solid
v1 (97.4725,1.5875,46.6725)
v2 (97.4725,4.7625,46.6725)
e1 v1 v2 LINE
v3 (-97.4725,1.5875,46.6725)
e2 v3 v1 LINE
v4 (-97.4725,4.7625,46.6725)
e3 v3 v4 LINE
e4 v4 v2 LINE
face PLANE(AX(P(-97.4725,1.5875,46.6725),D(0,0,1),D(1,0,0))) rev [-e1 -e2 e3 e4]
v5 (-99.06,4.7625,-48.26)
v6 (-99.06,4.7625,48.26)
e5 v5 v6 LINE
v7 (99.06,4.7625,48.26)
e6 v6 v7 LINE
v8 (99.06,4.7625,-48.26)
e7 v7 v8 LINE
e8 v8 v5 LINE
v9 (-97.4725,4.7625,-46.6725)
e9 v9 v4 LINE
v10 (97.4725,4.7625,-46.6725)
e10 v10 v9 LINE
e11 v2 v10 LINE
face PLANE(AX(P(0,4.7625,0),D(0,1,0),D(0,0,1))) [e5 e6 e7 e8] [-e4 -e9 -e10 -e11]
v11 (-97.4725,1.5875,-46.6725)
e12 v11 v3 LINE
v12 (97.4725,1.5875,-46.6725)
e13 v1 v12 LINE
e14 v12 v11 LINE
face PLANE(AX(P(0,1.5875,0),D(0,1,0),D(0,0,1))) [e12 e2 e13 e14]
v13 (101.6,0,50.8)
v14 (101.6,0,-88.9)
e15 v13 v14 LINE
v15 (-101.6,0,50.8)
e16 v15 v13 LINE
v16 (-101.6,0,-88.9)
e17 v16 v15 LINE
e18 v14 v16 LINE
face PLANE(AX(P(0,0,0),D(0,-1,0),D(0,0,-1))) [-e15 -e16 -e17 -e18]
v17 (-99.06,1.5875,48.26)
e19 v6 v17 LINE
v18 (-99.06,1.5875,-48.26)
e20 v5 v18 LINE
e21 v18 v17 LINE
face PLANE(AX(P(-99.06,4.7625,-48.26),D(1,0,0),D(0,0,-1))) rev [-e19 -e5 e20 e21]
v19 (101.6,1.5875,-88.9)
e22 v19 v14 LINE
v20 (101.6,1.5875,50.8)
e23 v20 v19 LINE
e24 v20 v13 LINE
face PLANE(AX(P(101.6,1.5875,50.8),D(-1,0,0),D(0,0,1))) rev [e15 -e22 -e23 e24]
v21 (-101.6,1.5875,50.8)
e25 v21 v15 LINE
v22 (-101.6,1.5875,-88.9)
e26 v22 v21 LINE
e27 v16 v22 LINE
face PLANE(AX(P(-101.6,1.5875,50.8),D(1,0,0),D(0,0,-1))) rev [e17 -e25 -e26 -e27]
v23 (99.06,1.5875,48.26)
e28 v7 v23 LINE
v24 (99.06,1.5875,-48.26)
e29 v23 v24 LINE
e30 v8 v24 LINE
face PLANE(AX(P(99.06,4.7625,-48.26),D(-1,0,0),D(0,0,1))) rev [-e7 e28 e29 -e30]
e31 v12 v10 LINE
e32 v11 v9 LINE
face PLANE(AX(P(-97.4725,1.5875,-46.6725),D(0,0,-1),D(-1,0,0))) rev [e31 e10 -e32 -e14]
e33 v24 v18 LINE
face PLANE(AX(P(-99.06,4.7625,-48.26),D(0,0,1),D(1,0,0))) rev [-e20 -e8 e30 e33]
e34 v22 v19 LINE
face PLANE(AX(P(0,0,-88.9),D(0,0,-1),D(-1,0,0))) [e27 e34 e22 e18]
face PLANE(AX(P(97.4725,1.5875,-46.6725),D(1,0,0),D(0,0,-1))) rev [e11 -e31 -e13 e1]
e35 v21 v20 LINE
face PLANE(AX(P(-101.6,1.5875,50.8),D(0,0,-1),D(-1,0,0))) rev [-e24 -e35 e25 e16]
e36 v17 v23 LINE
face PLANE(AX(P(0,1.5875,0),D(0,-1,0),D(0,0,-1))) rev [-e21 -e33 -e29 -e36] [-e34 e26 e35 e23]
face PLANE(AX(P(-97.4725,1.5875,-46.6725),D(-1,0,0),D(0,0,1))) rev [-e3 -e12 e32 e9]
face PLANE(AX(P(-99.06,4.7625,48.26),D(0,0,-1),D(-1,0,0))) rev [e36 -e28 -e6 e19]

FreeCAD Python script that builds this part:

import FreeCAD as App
import Part
import Sketcher

V = App.Vector
Q = App.Units.Quantity


def add_polygon(sketch, points):
    """Adds a closed chain of lines whose ends are joined by coincident constraints."""
    first, n = sketch.GeometryCount, len(points)
    for a, b in zip(points, points[1:] + points[:1]):
        sketch.addGeometry(Part.LineSegment(App.Vector(*a, 0), App.Vector(*b, 0)), False)
    for i in range(n):
        sketch.addConstraint(Sketcher.Constraint("Coincident", first + i, 2, first + (i + 1) % n, 1))

doc = App.newDocument("Part")
params = doc.addObject("Spreadsheet::Sheet", "Params")
for row, (alias, value) in enumerate([
    ("sketch1_width", "8 in"),
    ("sketch1_height", "4 in"),
    ("pad1_length", "0.0625 in"),
    ("sketch2_width", "7.8 in"),
    ("sketch2_height", "3.8 in"),
    ("pad2_length", "0.125 in"),
    ("sketch3_width", "7.675 in"),
    ("sketch3_height", "3.675 in"),
    ("pocket1_length", "0.125 in"),
    ("sketch4_width", "8 in"),
    ("sketch4_height", "0.0625 in"),
    ("pad3_length", "1.5 in"),
], start=1):
    params.set(f"A{row}", alias)
    params.set(f"B{row}", "=" + value)
    params.setAlias(f"B{row}", alias)

body = doc.addObject("PartDesign::Body", "Body")

sketch1 = doc.addObject("Sketcher::SketchObject", "Sketch")
body.addObject(sketch1)
sketch1.AttachmentSupport = (doc.XZ_Plane, [""])
sketch1.MapMode = "FlatFace"
add_polygon(sketch1, [(-101.6, -50.8), (-101.6, 50.8), (101.6, 50.8), (101.6, -50.8)])
sketch1.addConstraint([
    Sketcher.Constraint("Vertical", 0),
    Sketcher.Constraint("Horizontal", 1),
    Sketcher.Constraint("Vertical", 2),
    Sketcher.Constraint("Horizontal", 3),
    Sketcher.Constraint("Symmetric", 0, 2, 2, 2, -1, 1),
    Sketcher.Constraint("DistanceX", 1, 1, 1, 2, Q("8 in")),
    Sketcher.Constraint("DistanceY", 0, 1, 0, 2, Q("4 in")),
])
sketch1.setExpression("Constraints[9]", "Params.sketch1_width")
sketch1.setExpression("Constraints[10]", "Params.sketch1_height")
pad1 = doc.addObject("PartDesign::Pad", "Pad")
body.addObject(pad1)
pad1.Profile = sketch1
pad1.setExpression("Length", "Params.pad1_length")
pad1.Reversed = True

sketch2 = doc.addObject("Sketcher::SketchObject", "Sketch001")
body.addObject(sketch2)
sketch2.AttachmentSupport = (doc.XZ_Plane, [""])
sketch2.MapMode = "FlatFace"
sketch2.AttachmentOffset = App.Placement(V(0, 0, -0.0625 * 25.4), App.Rotation())
add_polygon(sketch2, [(-99.06, -48.26), (-99.06, 48.26), (99.06, 48.26), (99.06, -48.26)])
sketch2.addConstraint([
    Sketcher.Constraint("Vertical", 0),
    Sketcher.Constraint("Horizontal", 1),
    Sketcher.Constraint("Vertical", 2),
    Sketcher.Constraint("Horizontal", 3),
    Sketcher.Constraint("Symmetric", 0, 2, 2, 2, -1, 1),
    Sketcher.Constraint("DistanceX", 1, 1, 1, 2, Q("7.8 in")),
    Sketcher.Constraint("DistanceY", 0, 1, 0, 2, Q("3.8 in")),
])
sketch2.setExpression("Constraints[9]", "Params.sketch2_width")
sketch2.setExpression("Constraints[10]", "Params.sketch2_height")
pad2 = doc.addObject("PartDesign::Pad", "Pad001")
body.addObject(pad2)
pad2.Profile = sketch2
pad2.setExpression("Length", "Params.pad2_length")
pad2.Reversed = True

sketch3 = doc.addObject("Sketcher::SketchObject", "Sketch002")
body.addObject(sketch3)
sketch3.AttachmentSupport = (doc.XZ_Plane, [""])
sketch3.MapMode = "FlatFace"
sketch3.AttachmentOffset = App.Placement(V(0, 0, -0.1875 * 25.4), App.Rotation())
add_polygon(sketch3, [(-97.4725, -46.6725), (-97.4725, 46.6725), (97.4725, 46.6725), (97.4725, -46.6725)])
sketch3.addConstraint([
    Sketcher.Constraint("Vertical", 0),
    Sketcher.Constraint("Horizontal", 1),
    Sketcher.Constraint("Vertical", 2),
    Sketcher.Constraint("Horizontal", 3),
    Sketcher.Constraint("Symmetric", 0, 2, 2, 2, -1, 1),
    Sketcher.Constraint("DistanceX", 1, 1, 1, 2, Q("7.675 in")),
    Sketcher.Constraint("DistanceY", 0, 1, 0, 2, Q("3.675 in")),
])
sketch3.setExpression("Constraints[9]", "Params.sketch3_width")
sketch3.setExpression("Constraints[10]", "Params.sketch3_height")
pocket1 = doc.addObject("PartDesign::Pocket", "Pocket")
body.addObject(pocket1)
pocket1.Profile = sketch3
pocket1.setExpression("Length", "Params.pocket1_length")
pocket1.Reversed = True

sketch4 = doc.addObject("Sketcher::SketchObject", "Sketch003")
body.addObject(sketch4)
sketch4.AttachmentSupport = (doc.XY_Plane, [""])
sketch4.MapMode = "FlatFace"
sketch4.AttachmentOffset = App.Placement(V(0, 0, -2 * 25.4), App.Rotation())
add_polygon(sketch4, [(101.6, 1.5875), (101.6, 0), (-101.6, 0), (-101.6, 1.5875)])
sketch4.addConstraint([
    Sketcher.Constraint("Vertical", 0),
    Sketcher.Constraint("Horizontal", 1),
    Sketcher.Constraint("Vertical", 2),
    Sketcher.Constraint("Horizontal", 3),
    Sketcher.Constraint("Symmetric", 0, 2, 1, 2, -1, 1),
    Sketcher.Constraint("DistanceX", 1, 2, 1, 1, Q("8 in")),
    Sketcher.Constraint("DistanceY", 0, 2, 0, 1, Q("0.0625 in")),
])
sketch4.setExpression("Constraints[9]", "Params.sketch4_width")
sketch4.setExpression("Constraints[10]", "Params.sketch4_height")
pad3 = doc.addObject("PartDesign::Pad", "Pad002")
body.addObject(pad3)
pad3.Profile = sketch4
pad3.setExpression("Length", "Params.pad3_length")
pad3.Reversed = True

doc.recompute()
